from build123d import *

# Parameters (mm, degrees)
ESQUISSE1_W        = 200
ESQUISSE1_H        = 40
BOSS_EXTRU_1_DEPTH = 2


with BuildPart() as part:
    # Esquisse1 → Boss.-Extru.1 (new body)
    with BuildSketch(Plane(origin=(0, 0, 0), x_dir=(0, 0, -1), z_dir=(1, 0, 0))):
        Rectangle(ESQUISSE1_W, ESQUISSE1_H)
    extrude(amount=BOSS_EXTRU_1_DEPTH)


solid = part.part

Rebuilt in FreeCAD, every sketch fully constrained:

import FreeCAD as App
import Part
import Sketcher
from FreeCAD import Vector
Q = App.Units.Quantity

doc = App.newDocument("Part")
params = doc.addObject("Spreadsheet::Sheet", "Params")
for row, (alias, value) in enumerate([
    ("sketch1_width", "40 mm"),
    ("sketch1_height", "200 mm"),
    ("pad1_length", "2 mm"),
], start=1):
    params.set(f"A{row}", alias)
    params.set(f"B{row}", "=" + value)
    params.setAlias(f"B{row}", alias)

body = doc.addObject("PartDesign::Body", "Body")

# Sketch on YZ plane
sketch1 = body.newObject("Sketcher::SketchObject", "Sketch")
sketch1.AttachmentSupport = (doc.getObject("YZ_Plane"), [""])
sketch1.MapMode = "FlatFace"
sketch1.addGeometry(Part.LineSegment(Vector(20, 100, 0), Vector(-20, 100, 0)), False)
sketch1.addGeometry(Part.LineSegment(Vector(-20, 100, 0), Vector(-20, -100, 0)), False)
sketch1.addGeometry(Part.LineSegment(Vector(-20, -100, 0), Vector(20, -100, 0)), False)
sketch1.addGeometry(Part.LineSegment(Vector(20, -100, 0), Vector(20, 100, 0)), False)
sketch1.addConstraint(Sketcher.Constraint("Coincident", 0, 2, 1, 1))
sketch1.addConstraint(Sketcher.Constraint("Coincident", 1, 2, 2, 1))
sketch1.addConstraint(Sketcher.Constraint("Coincident", 2, 2, 3, 1))
sketch1.addConstraint(Sketcher.Constraint("Coincident", 3, 2, 0, 1))
sketch1.addConstraint(Sketcher.Constraint("Horizontal", 0))
sketch1.addConstraint(Sketcher.Constraint("Vertical", 1))
sketch1.addConstraint(Sketcher.Constraint("Horizontal", 2))
sketch1.addConstraint(Sketcher.Constraint("Vertical", 3))
sketch1.addConstraint(Sketcher.Constraint("Symmetric", 0, 2, 2, 2, -1, 1))
sketch1.addConstraint(Sketcher.Constraint("DistanceX", 0, 2, 0, 1, Q("40 mm")))
sketch1.addConstraint(Sketcher.Constraint("DistanceY", 1, 2, 1, 1, Q("200 mm")))
sketch1.setExpression("Constraints[9]", "Params.sketch1_width")
sketch1.setExpression("Constraints[10]", "Params.sketch1_height")
pad1 = body.newObject("PartDesign::Pad", "Pad")
pad1.Profile = sketch1
pad1.setExpression("Length", "Params.pad1_length")

doc.recompute()
